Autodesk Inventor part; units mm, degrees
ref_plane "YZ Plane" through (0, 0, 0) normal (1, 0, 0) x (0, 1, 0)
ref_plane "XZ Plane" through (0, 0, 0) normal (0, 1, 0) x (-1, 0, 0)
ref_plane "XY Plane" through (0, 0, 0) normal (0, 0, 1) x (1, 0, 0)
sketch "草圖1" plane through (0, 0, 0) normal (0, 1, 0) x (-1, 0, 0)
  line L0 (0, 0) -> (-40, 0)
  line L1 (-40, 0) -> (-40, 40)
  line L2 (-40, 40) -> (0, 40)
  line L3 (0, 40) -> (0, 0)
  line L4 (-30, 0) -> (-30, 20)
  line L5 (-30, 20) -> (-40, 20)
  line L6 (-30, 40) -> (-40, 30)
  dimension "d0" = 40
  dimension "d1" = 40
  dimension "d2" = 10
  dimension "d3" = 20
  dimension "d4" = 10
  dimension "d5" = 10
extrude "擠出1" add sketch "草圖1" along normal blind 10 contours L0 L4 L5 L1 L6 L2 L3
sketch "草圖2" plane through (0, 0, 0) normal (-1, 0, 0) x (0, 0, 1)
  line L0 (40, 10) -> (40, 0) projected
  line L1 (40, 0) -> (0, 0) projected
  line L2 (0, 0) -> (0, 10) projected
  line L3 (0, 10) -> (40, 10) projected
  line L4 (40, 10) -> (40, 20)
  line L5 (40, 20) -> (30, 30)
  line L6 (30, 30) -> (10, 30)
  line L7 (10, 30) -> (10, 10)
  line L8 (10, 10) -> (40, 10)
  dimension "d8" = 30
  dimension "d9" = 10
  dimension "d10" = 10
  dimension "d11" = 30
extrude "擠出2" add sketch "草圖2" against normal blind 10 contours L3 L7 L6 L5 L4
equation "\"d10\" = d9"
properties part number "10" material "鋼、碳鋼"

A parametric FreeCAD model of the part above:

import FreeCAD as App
import Part
import Sketcher

doc = App.newDocument("Part")
body = doc.addObject("PartDesign::Body", "Body")

# Sketch on XZ plane
sketch1 = body.newObject("Sketcher::SketchObject", "Sketch")
sketch1.AttachmentSupport = (doc.getObject("XZ_Plane"), [""])
sketch1.MapMode = "FlatFace"
sketch1.addGeometry([
    Part.LineSegment(App.Vector(30, 0, 0), App.Vector(0, 0, 0)),  # 0
    Part.LineSegment(App.Vector(0, 0, 0), App.Vector(0, 40, 0)),  # 1
    Part.LineSegment(App.Vector(0, 40, 0), App.Vector(30, 40, 0)),  # 2
    Part.LineSegment(App.Vector(30, 40, 0), App.Vector(40, 30, 0)),  # 3
    Part.LineSegment(App.Vector(40, 30, 0), App.Vector(40, 20, 0)),  # 4
    Part.LineSegment(App.Vector(40, 20, 0), App.Vector(30, 20, 0)),  # 5
    Part.LineSegment(App.Vector(30, 20, 0), App.Vector(30, 0, 0)),  # 6
], False)
sketch1.addConstraint([
    Sketcher.Constraint("Coincident", 0, 2, 1, 1),
    Sketcher.Constraint("Coincident", 1, 2, 2, 1),
    Sketcher.Constraint("Coincident", 2, 2, 3, 1),
    Sketcher.Constraint("Coincident", 3, 2, 4, 1),
    Sketcher.Constraint("Coincident", 4, 2, 5, 1),
    Sketcher.Constraint("Coincident", 5, 2, 6, 1),
    Sketcher.Constraint("Coincident", 6, 2, 0, 1),
    Sketcher.Constraint("Horizontal", 0),
    Sketcher.Constraint("Vertical", 1),
    Sketcher.Constraint("Horizontal", 2),
    Sketcher.Constraint("Vertical", 4),
    Sketcher.Constraint("Horizontal", 5),
    Sketcher.Constraint("Vertical", 6),
    Sketcher.Constraint("Coincident", 0, 2, -1, 1),
    Sketcher.Constraint("Vertical", 2, 2, 5, 2),
    Sketcher.Constraint("Equal", 5, 4),
    Sketcher.Constraint("DistanceX", 5, 2, 5, 1, 10.0),
    Sketcher.Constraint("DistanceY", 1, 1, 1, 2, 40.0),
    Sketcher.Constraint("DistanceY", 6, 2, 6, 1, 20.0),
    Sketcher.Constraint("DistanceX", -1, 1, 3, 2, 40.0),
])
pad1 = body.newObject("PartDesign::Pad", "Pad")
pad1.Profile = sketch1
pad1.Length = 10
pad1.Reversed = True

# Sketch on YZ plane
sketch2 = body.newObject("Sketcher::SketchObject", "Sketch001")
sketch2.AttachmentSupport = (doc.getObject("YZ_Plane"), [""])
sketch2.MapMode = "FlatFace"
sketch2.addGeometry([
    Part.LineSegment(App.Vector(10, 10, 0), App.Vector(10, 40, 0)),  # 0
    Part.LineSegment(App.Vector(10, 40, 0), App.Vector(20, 40, 0)),  # 1
    Part.LineSegment(App.Vector(20, 40, 0), App.Vector(30, 30, 0)),  # 2
    Part.LineSegment(App.Vector(30, 30, 0), App.Vector(30, 10, 0)),  # 3
    Part.LineSegment(App.Vector(30, 10, 0), App.Vector(10, 10, 0)),  # 4
], False)
sketch2.addConstraint([
    Sketcher.Constraint("Coincident", 0, 2, 1, 1),
    Sketcher.Constraint("Coincident", 1, 2, 2, 1),
    Sketcher.Constraint("Coincident", 2, 2, 3, 1),
    Sketcher.Constraint("Coincident", 3, 2, 4, 1),
    Sketcher.Constraint("Coincident", 4, 2, 0, 1),
    Sketcher.Constraint("Vertical", 0),
    Sketcher.Constraint("Horizontal", 1),
    Sketcher.Constraint("Vertical", 3),
    Sketcher.Constraint("Horizontal", 4),
    Sketcher.Constraint("Equal", 4, 3),
    Sketcher.Constraint("DistanceX", 1, 1, 1, 2, 10.0),
    Sketcher.Constraint("DistanceY", 0, 1, 0, 2, 30.0),
    Sketcher.Constraint("DistanceX", -1, 1, 0, 2, 10.0),
    Sketcher.Constraint("DistanceX", -1, 1, 2, 2, 30.0),
    Sketcher.Constraint("DistanceY", -1, 1, 2, 2, 30.0),
])
pad2 = body.newObject("PartDesign::Pad", "Pad001")
pad2.Profile = sketch2
pad2.Length = 10

doc.recompute()
